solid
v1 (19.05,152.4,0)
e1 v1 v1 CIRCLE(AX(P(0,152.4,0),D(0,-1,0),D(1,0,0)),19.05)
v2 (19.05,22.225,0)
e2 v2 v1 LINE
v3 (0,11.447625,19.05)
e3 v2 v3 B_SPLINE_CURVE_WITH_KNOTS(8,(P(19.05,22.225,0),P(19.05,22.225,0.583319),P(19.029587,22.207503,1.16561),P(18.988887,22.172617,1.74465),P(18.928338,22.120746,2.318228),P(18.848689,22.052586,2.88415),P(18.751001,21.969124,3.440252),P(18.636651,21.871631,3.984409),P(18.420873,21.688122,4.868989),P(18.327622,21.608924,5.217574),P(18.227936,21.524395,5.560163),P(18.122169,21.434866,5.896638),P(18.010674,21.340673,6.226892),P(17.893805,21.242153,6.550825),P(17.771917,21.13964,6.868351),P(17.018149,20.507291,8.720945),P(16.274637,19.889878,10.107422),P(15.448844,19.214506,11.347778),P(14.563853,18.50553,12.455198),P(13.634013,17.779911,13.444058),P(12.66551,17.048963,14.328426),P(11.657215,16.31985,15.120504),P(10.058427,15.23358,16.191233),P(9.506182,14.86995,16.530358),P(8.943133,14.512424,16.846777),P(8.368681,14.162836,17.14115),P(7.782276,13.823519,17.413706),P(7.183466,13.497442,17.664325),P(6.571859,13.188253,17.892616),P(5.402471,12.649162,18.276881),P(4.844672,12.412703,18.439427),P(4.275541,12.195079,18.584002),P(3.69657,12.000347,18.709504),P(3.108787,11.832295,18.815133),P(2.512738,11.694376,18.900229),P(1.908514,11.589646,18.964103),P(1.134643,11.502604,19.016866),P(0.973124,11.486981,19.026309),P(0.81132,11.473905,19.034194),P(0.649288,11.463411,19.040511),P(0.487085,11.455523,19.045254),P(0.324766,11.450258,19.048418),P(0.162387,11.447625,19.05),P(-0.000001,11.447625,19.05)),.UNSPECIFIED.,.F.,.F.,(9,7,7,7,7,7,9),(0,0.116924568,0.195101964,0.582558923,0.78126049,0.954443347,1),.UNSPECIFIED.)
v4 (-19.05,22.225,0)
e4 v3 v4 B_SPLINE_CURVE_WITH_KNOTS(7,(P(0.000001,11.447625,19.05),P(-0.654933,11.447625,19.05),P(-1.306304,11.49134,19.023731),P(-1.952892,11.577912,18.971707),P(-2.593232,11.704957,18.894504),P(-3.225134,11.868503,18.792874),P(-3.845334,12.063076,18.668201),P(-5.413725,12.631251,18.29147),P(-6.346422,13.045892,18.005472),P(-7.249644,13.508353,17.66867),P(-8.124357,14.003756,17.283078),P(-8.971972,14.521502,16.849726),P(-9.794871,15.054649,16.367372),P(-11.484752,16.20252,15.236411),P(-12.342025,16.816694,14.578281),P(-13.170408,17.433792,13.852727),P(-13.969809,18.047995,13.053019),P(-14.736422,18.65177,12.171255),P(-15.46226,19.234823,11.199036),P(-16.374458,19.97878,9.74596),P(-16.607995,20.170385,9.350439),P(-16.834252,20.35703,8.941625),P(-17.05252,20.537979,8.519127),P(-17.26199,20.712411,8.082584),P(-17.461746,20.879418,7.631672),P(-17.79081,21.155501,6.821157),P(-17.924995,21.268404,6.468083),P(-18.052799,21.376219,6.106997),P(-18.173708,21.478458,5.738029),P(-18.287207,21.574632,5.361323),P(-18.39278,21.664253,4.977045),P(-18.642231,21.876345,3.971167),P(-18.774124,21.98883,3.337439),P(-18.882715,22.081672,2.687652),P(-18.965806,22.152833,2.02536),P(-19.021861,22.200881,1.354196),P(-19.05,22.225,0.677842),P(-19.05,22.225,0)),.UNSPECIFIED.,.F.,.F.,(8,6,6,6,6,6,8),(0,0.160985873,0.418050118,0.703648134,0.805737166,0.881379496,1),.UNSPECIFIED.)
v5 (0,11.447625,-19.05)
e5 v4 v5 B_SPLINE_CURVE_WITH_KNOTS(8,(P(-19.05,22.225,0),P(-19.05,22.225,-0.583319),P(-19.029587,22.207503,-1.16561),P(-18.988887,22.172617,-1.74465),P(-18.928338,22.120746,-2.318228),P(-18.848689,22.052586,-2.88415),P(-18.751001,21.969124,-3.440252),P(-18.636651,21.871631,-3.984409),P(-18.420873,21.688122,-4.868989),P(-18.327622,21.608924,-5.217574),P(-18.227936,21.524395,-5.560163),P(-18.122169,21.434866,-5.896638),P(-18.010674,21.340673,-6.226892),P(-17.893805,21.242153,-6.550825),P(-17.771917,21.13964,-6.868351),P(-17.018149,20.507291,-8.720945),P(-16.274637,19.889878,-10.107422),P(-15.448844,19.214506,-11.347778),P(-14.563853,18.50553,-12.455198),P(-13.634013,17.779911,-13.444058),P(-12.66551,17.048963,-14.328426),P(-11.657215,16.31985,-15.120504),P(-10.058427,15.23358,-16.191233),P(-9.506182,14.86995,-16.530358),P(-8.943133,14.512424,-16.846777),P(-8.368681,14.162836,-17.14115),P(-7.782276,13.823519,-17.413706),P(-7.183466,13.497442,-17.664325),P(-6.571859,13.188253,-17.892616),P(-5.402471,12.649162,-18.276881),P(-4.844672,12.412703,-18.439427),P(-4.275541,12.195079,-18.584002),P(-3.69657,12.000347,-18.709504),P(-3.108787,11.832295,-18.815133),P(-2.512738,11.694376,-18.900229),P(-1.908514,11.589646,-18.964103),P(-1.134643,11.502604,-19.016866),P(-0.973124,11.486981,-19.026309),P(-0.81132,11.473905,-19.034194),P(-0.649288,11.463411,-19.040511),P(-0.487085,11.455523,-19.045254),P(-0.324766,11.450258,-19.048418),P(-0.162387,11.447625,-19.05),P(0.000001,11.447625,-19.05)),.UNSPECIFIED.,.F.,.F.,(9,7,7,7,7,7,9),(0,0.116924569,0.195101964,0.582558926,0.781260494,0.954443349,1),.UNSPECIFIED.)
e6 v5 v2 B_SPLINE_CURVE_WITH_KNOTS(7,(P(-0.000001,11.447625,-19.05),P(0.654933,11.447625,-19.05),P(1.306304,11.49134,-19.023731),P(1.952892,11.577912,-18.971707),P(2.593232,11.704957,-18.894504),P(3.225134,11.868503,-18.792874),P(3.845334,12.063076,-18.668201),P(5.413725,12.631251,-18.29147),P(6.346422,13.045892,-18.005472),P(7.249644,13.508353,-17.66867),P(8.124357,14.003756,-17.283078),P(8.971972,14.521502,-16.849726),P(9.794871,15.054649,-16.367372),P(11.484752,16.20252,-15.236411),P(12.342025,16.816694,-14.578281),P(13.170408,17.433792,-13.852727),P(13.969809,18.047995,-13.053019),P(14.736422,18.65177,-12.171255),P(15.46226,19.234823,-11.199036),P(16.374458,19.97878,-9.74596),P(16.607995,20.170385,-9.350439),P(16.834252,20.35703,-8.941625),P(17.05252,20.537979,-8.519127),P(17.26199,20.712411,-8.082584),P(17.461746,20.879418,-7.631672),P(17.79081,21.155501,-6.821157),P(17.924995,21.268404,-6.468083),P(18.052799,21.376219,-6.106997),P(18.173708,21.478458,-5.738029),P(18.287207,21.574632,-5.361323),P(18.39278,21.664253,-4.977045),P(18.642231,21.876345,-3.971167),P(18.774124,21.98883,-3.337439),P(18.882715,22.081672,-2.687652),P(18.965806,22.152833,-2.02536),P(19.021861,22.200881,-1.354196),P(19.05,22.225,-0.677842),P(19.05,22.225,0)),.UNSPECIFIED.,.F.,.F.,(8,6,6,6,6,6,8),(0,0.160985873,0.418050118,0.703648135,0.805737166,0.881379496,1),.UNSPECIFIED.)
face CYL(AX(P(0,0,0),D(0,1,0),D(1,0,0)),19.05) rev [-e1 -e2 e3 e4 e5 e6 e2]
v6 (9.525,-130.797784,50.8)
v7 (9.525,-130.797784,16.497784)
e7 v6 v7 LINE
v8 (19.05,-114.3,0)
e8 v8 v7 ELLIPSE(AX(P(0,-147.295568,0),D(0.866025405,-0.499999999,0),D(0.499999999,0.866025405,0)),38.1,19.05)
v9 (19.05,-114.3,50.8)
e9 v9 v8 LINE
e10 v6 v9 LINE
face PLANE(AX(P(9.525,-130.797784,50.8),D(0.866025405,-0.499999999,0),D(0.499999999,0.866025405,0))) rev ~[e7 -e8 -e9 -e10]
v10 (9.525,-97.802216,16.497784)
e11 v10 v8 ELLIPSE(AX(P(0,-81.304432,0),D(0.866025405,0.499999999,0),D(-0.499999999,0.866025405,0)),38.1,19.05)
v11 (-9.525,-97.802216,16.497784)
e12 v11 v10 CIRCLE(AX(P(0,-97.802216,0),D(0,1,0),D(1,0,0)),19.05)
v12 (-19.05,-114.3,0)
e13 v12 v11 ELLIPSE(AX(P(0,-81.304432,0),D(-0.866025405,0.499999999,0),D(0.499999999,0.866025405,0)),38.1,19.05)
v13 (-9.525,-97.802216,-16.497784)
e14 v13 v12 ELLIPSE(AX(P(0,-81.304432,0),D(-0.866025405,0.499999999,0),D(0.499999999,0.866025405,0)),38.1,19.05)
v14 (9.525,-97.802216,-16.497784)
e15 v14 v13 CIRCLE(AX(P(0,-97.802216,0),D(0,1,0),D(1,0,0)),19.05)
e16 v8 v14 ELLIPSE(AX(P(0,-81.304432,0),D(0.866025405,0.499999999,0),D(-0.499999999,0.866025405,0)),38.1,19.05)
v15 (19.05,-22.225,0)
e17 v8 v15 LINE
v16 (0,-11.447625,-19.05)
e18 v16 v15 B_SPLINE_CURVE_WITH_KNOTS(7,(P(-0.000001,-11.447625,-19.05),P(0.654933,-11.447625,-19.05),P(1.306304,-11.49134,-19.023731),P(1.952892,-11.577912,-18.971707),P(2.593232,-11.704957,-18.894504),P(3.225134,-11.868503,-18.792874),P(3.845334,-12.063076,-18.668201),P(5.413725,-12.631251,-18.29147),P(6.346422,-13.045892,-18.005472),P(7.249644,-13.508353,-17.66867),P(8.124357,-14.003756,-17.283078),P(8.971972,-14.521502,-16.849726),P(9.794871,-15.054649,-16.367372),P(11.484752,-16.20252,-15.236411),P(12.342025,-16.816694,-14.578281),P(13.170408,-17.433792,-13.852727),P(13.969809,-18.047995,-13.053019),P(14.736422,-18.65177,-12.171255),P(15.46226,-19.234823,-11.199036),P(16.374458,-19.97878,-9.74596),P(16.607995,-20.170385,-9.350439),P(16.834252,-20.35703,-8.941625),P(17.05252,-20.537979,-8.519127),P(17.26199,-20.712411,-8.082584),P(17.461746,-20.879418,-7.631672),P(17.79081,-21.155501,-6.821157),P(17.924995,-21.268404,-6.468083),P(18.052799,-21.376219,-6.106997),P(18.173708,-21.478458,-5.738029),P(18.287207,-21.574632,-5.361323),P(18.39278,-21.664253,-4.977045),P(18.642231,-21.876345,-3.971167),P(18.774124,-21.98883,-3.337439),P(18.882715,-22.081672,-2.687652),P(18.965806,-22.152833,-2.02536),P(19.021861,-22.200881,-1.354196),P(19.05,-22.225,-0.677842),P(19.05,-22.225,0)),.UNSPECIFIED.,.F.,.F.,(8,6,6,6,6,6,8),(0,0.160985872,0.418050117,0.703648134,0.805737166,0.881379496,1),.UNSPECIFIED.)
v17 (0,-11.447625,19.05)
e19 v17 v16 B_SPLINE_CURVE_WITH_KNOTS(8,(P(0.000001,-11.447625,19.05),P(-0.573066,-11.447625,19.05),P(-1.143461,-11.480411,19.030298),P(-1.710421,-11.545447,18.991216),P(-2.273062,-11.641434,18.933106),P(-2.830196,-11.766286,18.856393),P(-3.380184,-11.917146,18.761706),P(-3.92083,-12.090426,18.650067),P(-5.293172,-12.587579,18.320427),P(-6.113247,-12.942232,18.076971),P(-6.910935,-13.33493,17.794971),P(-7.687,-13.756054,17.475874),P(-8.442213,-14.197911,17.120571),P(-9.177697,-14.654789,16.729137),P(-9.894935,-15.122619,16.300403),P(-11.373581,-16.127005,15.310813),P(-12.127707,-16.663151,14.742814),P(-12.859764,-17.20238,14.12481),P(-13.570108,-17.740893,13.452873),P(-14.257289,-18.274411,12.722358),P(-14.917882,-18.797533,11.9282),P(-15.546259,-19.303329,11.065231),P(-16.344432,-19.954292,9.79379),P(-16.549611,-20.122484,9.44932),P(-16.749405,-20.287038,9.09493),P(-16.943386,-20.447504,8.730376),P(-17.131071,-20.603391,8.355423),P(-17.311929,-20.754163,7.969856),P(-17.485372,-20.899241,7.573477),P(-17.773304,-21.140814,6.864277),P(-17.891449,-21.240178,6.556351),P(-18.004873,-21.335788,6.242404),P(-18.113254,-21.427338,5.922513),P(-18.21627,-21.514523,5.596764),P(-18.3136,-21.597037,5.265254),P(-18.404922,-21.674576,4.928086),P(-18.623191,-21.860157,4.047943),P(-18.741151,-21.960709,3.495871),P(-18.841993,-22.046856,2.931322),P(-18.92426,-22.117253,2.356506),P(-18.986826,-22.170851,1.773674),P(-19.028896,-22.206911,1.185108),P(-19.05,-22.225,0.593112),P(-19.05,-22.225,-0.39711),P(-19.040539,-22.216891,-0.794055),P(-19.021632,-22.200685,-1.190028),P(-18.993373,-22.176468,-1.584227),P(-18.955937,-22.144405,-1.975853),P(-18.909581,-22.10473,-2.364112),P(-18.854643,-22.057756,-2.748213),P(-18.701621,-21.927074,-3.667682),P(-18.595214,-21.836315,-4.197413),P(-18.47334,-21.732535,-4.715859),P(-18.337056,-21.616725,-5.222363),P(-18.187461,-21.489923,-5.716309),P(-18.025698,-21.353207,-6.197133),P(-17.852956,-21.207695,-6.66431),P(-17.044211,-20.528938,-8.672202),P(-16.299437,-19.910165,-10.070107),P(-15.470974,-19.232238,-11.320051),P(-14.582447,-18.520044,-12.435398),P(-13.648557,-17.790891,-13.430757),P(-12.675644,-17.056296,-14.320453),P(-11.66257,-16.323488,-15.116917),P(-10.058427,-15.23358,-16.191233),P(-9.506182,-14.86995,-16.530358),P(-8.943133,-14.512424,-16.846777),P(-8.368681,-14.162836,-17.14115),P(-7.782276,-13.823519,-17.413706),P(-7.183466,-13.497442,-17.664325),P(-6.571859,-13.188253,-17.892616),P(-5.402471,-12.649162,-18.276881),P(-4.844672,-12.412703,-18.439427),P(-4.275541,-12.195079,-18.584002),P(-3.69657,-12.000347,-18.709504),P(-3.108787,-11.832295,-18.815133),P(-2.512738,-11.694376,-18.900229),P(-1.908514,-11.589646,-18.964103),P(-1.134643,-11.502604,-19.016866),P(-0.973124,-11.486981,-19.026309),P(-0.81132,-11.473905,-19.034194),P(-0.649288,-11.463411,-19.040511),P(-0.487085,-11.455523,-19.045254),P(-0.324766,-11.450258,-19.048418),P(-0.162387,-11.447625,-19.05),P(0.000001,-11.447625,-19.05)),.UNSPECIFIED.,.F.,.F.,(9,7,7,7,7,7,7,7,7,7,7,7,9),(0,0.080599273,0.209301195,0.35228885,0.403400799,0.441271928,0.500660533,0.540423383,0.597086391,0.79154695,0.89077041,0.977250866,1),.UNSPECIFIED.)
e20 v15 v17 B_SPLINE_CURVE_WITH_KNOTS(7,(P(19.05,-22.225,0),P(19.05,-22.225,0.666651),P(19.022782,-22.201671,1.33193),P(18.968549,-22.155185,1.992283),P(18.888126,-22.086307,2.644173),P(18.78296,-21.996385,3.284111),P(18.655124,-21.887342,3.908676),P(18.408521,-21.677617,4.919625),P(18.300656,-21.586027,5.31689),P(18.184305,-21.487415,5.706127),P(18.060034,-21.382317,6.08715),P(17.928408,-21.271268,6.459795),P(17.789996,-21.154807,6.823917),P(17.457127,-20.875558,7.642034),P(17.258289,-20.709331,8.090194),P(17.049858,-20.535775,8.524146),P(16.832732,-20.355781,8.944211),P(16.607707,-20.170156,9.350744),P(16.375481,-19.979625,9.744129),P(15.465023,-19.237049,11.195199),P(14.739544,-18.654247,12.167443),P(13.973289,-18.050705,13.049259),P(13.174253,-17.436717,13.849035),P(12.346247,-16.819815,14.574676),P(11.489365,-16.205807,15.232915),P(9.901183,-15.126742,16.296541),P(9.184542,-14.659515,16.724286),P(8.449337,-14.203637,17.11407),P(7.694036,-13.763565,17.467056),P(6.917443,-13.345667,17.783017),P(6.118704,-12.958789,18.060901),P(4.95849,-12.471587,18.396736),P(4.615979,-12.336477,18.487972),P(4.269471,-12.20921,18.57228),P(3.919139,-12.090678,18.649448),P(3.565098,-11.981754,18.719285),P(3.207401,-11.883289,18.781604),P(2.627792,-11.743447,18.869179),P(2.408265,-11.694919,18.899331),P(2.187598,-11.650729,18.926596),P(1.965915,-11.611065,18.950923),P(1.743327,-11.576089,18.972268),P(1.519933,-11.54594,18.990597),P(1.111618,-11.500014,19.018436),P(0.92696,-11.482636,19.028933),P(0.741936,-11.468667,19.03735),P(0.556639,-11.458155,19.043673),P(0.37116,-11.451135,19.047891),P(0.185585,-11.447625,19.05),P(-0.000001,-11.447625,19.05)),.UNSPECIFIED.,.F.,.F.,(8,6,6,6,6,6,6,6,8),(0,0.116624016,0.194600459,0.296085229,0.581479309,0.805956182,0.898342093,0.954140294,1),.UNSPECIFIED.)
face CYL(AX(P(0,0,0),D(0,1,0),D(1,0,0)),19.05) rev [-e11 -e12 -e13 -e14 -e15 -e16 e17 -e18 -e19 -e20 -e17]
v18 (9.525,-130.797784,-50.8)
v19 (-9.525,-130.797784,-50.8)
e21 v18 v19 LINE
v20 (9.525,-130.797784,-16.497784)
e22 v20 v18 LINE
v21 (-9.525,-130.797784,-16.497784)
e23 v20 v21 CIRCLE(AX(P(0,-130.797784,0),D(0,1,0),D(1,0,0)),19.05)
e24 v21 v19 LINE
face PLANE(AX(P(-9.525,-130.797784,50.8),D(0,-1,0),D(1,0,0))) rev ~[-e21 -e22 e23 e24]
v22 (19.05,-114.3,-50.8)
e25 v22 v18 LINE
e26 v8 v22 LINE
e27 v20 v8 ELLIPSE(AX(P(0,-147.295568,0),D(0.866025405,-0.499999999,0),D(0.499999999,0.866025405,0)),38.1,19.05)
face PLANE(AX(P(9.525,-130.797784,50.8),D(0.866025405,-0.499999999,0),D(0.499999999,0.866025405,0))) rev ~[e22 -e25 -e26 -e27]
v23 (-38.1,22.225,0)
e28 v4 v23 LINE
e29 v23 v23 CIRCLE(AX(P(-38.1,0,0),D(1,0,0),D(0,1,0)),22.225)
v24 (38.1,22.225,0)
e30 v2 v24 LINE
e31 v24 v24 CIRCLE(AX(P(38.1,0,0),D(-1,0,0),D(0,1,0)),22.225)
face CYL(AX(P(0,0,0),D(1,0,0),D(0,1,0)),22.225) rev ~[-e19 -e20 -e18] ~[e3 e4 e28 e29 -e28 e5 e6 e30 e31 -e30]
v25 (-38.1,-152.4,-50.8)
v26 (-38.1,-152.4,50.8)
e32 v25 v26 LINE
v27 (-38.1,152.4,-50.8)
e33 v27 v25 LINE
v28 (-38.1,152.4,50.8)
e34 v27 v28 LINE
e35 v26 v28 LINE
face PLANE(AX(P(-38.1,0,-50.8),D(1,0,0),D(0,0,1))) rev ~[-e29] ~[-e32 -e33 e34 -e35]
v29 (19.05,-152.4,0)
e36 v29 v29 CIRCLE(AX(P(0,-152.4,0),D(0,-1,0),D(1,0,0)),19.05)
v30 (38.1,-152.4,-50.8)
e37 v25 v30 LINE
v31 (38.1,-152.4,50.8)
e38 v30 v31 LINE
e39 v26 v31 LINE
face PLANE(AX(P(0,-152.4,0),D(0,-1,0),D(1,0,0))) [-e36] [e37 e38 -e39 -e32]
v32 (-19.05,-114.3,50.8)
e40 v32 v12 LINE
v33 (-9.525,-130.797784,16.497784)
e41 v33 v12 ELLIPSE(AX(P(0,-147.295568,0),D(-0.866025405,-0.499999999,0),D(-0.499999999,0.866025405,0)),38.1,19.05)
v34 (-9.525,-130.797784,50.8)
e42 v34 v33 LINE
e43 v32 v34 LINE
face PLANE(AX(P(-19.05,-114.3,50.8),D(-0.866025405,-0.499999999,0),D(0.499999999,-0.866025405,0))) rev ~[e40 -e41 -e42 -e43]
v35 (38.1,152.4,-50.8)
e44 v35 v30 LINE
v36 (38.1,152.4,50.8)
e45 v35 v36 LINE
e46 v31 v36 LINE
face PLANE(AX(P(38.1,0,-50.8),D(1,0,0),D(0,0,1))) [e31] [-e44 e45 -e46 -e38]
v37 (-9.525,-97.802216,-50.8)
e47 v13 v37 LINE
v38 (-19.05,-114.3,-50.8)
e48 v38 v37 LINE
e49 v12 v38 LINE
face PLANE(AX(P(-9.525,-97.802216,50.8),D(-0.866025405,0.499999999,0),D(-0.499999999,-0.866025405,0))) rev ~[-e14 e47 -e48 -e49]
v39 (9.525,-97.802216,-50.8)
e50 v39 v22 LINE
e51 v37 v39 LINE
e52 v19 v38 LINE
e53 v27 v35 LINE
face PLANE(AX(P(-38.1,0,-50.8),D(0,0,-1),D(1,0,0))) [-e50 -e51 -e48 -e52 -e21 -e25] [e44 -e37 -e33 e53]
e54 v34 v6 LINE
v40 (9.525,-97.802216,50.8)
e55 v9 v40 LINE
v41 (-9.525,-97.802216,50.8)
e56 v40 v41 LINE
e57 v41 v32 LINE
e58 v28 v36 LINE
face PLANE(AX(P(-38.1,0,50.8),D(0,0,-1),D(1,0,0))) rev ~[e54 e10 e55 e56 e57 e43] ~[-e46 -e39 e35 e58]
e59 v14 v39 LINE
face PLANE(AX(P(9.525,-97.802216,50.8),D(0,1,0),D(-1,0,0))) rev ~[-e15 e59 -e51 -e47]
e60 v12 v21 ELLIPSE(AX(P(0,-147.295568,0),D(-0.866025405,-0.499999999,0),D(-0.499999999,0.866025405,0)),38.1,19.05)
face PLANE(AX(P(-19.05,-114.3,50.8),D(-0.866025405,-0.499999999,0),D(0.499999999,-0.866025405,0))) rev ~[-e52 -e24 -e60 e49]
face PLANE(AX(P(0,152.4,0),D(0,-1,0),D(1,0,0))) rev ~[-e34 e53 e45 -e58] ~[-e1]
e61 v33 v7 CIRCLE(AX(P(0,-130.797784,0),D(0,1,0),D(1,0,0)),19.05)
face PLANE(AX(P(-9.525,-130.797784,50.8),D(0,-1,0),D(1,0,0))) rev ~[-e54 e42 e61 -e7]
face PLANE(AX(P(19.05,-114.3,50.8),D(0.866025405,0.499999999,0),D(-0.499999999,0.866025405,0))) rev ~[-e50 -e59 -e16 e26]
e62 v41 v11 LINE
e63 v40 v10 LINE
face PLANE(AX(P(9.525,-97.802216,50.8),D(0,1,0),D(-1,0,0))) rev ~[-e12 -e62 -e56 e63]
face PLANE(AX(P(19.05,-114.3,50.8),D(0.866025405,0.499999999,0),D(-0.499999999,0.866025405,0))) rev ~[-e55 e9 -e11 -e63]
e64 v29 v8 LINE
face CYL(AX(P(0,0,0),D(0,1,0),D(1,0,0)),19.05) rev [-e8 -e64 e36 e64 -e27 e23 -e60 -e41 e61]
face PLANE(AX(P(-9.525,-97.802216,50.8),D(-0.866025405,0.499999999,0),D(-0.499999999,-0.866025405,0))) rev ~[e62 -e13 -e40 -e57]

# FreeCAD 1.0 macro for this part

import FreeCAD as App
import Part
import Sketcher
from FreeCAD import Vector
Q = App.Units.Quantity

doc = App.newDocument("Part")
body = doc.addObject("PartDesign::Body", "Body")

# Sketch on XZ plane
sketch1 = body.newObject("Sketcher::SketchObject", "Sketch")
sketch1.AttachmentSupport = (doc.getObject("XZ_Plane"), [""])
sketch1.MapMode = "FlatFace"
sketch1.addGeometry(Part.LineSegment(Vector(-38.1, 50.8, 0), Vector(-38.1, -50.8, 0)), False)
sketch1.addGeometry(Part.LineSegment(Vector(-38.1, -50.8, 0), Vector(38.1, -50.8, 0)), False)
sketch1.addGeometry(Part.LineSegment(Vector(38.1, -50.8, 0), Vector(38.1, 50.8, 0)), False)
sketch1.addGeometry(Part.LineSegment(Vector(38.1, 50.8, 0), Vector(-38.1, 50.8, 0)), False)
sketch1.addGeometry(Part.Circle(Vector(0, 0, 0), Vector(0, 0, 1), 19.05), False)
sketch1.addConstraint(Sketcher.Constraint("Coincident", 0, 2, 1, 1))
sketch1.addConstraint(Sketcher.Constraint("Coincident", 1, 2, 2, 1))
sketch1.addConstraint(Sketcher.Constraint("Coincident", 2, 2, 3, 1))
sketch1.addConstraint(Sketcher.Constraint("Coincident", 3, 2, 0, 1))
sketch1.addConstraint(Sketcher.Constraint("Vertical", 0))
sketch1.addConstraint(Sketcher.Constraint("Horizontal", 1))
sketch1.addConstraint(Sketcher.Constraint("Vertical", 2))
sketch1.addConstraint(Sketcher.Constraint("Horizontal", 3))
sketch1.addConstraint(Sketcher.Constraint("Coincident", 4, 3, -1, 1))
sketch1.addConstraint(Sketcher.Constraint("Symmetric", 0, 2, 2, 2, -1, 1))
sketch1.addConstraint(Sketcher.Constraint("Diameter", 4, Q("1.5 in")))
sketch1.addConstraint(Sketcher.Constraint("DistanceX", 1, 1, 1, 2, Q("3 in")))
sketch1.addConstraint(Sketcher.Constraint("DistanceY", 0, 2, 0, 1, Q("4 in")))
pad1 = body.newObject("PartDesign::Pad", "Pad")
pad1.Profile = sketch1
pad1.Length = Q("12 in")
pad1.Midplane = True

# Sketch on YZ plane
sketch2 = body.newObject("Sketcher::SketchObject", "Sketch001")
sketch2.AttachmentSupport = (doc.getObject("YZ_Plane"), [""])
sketch2.MapMode = "FlatFace"
sketch2.addGeometry(Part.Circle(Vector(0, 0, 0), Vector(0, 0, 1), 22.225), False)
sketch2.addConstraint(Sketcher.Constraint("Coincident", 0, 3, -1, 1))
sketch2.addConstraint(Sketcher.Constraint("Diameter", 0, Q("1.75 in")))
pocket1 = body.newObject("PartDesign::Pocket", "Pocket")
pocket1.Profile = sketch2
pocket1.Type = "ThroughAll"
pocket1.Midplane = True

# Sketch on XY plane
sketch3 = body.newObject("Sketcher::SketchObject", "Sketch002")
sketch3.AttachmentSupport = (doc.getObject("XY_Plane"), [""])
sketch3.MapMode = "FlatFace"
sketch3.AttachmentOffset = App.Placement(Vector(0, 0, 2 * 25.4), App.Rotation())
sketch3.addGeometry(Part.LineSegment(Vector(9.525, -97.802216, 0), Vector(-9.525, -97.802216, 0)), False)
sketch3.addGeometry(Part.LineSegment(Vector(-9.525, -97.802216, 0), Vector(-19.05, -114.3, 0)), False)
sketch3.addGeometry(Part.LineSegment(Vector(-19.05, -114.3, 0), Vector(-9.525, -130.797784, 0)), False)
sketch3.addGeometry(Part.LineSegment(Vector(-9.525, -130.797784, 0), Vector(9.525, -130.797784, 0)), False)
sketch3.addGeometry(Part.LineSegment(Vector(9.525, -130.797784, 0), Vector(19.05, -114.3, 0)), False)
sketch3.addGeometry(Part.LineSegment(Vector(19.05, -114.3, 0), Vector(9.525, -97.802216, 0)), False)
sketch3.addConstraint(Sketcher.Constraint("Coincident", 0, 2, 1, 1))
sketch3.addConstraint(Sketcher.Constraint("Coincident", 1, 2, 2, 1))
sketch3.addConstraint(Sketcher.Constraint("Coincident", 2, 2, 3, 1))
sketch3.addConstraint(Sketcher.Constraint("Coincident", 3, 2, 4, 1))
sketch3.addConstraint(Sketcher.Constraint("Coincident", 4, 2, 5, 1))
sketch3.addConstraint(Sketcher.Constraint("Coincident", 5, 2, 0, 1))
sketch3.addConstraint(Sketcher.Constraint("Horizontal", 0))
sketch3.addConstraint(Sketcher.Constraint("Horizontal", 3))
sketch3.addConstraint(Sketcher.Constraint("Symmetric", 1, 2, 4, 2, -2))
sketch3.addConstraint(Sketcher.Constraint("Parallel", 1, 4))
sketch3.addConstraint(Sketcher.Constraint("Parallel", 2, 5))
sketch3.addConstraint(Sketcher.Constraint("Vertical", 0, 2, 2, 2))
sketch3.addConstraint(Sketcher.Constraint("Vertical", 3, 2, 5, 2))
sketch3.addConstraint(Sketcher.Constraint("Angle", 1, Q("-120 deg")))
sketch3.addConstraint(Sketcher.Constraint("DistanceX", 0, 2, 0, 1, Q("0.75 in")))
sketch3.addConstraint(Sketcher.Constraint("DistanceY", 1, 2, -1, 1, Q("4.5 in")))
sketch3.addConstraint(Sketcher.Constraint("DistanceX", 1, 2, 4, 2, Q("1.5 in")))
pocket2 = body.newObject("PartDesign::Pocket", "Pocket001")
pocket2.Profile = sketch3
pocket2.Type = "ThroughAll"

doc.recompute()
